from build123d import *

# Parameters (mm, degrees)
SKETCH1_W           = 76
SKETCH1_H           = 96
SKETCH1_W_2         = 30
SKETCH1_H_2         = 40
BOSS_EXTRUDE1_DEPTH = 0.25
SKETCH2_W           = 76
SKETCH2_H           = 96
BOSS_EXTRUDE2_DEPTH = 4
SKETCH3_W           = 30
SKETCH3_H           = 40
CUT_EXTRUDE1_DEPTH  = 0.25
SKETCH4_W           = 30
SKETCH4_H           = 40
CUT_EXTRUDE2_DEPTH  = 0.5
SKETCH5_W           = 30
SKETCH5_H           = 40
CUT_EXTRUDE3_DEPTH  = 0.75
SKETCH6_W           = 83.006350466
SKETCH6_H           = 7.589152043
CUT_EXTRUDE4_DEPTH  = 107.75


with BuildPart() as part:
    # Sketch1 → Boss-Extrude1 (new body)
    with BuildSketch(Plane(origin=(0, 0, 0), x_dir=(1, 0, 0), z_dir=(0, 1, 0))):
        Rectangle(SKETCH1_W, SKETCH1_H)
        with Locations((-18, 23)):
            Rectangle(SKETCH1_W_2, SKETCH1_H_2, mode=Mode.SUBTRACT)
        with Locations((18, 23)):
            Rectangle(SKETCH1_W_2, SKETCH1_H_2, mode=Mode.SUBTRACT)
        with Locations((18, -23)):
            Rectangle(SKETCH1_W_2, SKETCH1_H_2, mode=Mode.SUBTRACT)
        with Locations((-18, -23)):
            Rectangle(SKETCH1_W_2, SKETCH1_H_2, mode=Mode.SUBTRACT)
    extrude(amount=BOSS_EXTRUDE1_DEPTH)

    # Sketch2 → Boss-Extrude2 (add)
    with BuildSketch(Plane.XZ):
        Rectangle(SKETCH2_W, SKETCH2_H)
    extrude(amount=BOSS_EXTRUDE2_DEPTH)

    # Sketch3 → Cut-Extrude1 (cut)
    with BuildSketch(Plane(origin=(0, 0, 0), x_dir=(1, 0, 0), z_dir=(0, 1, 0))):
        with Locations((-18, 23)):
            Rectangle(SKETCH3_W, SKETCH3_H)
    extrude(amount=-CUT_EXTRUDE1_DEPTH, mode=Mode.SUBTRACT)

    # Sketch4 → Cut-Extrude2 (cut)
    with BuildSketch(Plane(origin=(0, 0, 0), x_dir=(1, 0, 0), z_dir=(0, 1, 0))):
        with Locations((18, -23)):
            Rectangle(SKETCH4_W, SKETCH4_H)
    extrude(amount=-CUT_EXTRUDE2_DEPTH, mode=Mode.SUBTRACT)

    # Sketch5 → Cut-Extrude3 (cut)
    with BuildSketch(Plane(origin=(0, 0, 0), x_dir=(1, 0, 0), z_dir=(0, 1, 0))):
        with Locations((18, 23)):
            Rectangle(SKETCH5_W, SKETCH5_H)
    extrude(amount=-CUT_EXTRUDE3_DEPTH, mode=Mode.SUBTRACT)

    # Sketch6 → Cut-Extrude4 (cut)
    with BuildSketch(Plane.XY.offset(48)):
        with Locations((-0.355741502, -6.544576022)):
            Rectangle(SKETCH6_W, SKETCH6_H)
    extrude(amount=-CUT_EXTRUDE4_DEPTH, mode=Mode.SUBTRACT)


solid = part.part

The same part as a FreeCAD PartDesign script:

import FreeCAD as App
import Part
import Sketcher
from FreeCAD import Vector
Q = App.Units.Quantity


def add_polygon(sketch, points):
    """Adds a closed chain of lines whose ends are joined by coincident constraints."""
    first, n = sketch.GeometryCount, len(points)
    for a, b in zip(points, points[1:] + points[:1]):
        sketch.addGeometry(Part.LineSegment(App.Vector(*a, 0), App.Vector(*b, 0)), False)
    for i in range(n):
        sketch.addConstraint(Sketcher.Constraint("Coincident", first + i, 2, first + (i + 1) % n, 1))

doc = App.newDocument("Part")
body = doc.addObject("PartDesign::Body", "Body")

# Sketch on XZ plane
sketch1 = body.newObject("Sketcher::SketchObject", "Sketch")
sketch1.AttachmentSupport = (doc.getObject("XZ_Plane"), [""])
sketch1.MapMode = "FlatFace"
add_polygon(sketch1, [(-38, -48), (-38, 48), (38, 48), (38, -48)])  # lines 0-3
add_polygon(sketch1, [(-3, 43), (-33, 43), (-33, 3), (-3, 3)])  # lines 4-7
add_polygon(sketch1, [(33, 43), (3, 43), (3, 3), (33, 3)])  # lines 8-11
add_polygon(sketch1, [(-3, -3), (-33, -3), (-33, -43), (-3, -43)])  # lines 12-15
add_polygon(sketch1, [(33, -3), (3, -3), (3, -43), (33, -43)])  # lines 16-19
sketch1.addConstraint([
    Sketcher.Constraint("Vertical", 0),
    Sketcher.Constraint("Horizontal", 1),
    Sketcher.Constraint("Vertical", 2),
    Sketcher.Constraint("Horizontal", 3),
    Sketcher.Constraint("Horizontal", 4),
    Sketcher.Constraint("Vertical", 5),
    Sketcher.Constraint("Horizontal", 6),
    Sketcher.Constraint("Vertical", 7),
    Sketcher.Constraint("Horizontal", 8),
    Sketcher.Constraint("Vertical", 9),
    Sketcher.Constraint("Horizontal", 10),
    Sketcher.Constraint("Vertical", 11),
    Sketcher.Constraint("Horizontal", 12),
    Sketcher.Constraint("Vertical", 13),
    Sketcher.Constraint("Horizontal", 14),
    Sketcher.Constraint("Vertical", 15),
    Sketcher.Constraint("Horizontal", 16),
    Sketcher.Constraint("Vertical", 17),
    Sketcher.Constraint("Horizontal", 18),
    Sketcher.Constraint("Vertical", 19),
    Sketcher.Constraint("Symmetric", 0, 2, 2, 2, -1, 1),
    Sketcher.Constraint("Symmetric", 10, 2, 12, 2, -1, 1),
    Sketcher.Constraint("Symmetric", 8, 2, 14, 2, -1, 1),
    Sketcher.Constraint("Symmetric", 6, 2, 16, 2, -1, 1),
    Sketcher.Constraint("Symmetric", 4, 2, 18, 2, -1, 1),
    Sketcher.Constraint("Symmetric", 7, 2, 8, 2, -2),
    Sketcher.Constraint("Symmetric", 5, 2, 10, 2, -2),
    Sketcher.Constraint("DistanceX", 1, 1, 1, 2, Q("76 mm")),
    Sketcher.Constraint("DistanceX", 4, 2, 4, 1, Q("30 mm")),
    Sketcher.Constraint("DistanceY", 0, 1, 0, 2, Q("96 mm")),
    Sketcher.Constraint("DistanceY", 5, 2, 5, 1, Q("40 mm")),
    Sketcher.Constraint("DistanceX", 4, 2, -1, 1, Q("33 mm")),
    Sketcher.Constraint("DistanceY", -1, 1, 4, 2, Q("43 mm")),
])
pad1 = body.newObject("PartDesign::Pad", "Pad")
pad1.Profile = sketch1
pad1.Length = 0.25
pad1.Reversed = True

# Sketch on XZ plane
sketch2 = body.newObject("Sketcher::SketchObject", "Sketch001")
sketch2.AttachmentSupport = (doc.getObject("XZ_Plane"), [""])
sketch2.MapMode = "FlatFace"
add_polygon(sketch2, [(-38, 48), (-38, -48), (38, -48), (38, 48)])  # lines 0-3
sketch2.addConstraint([
    Sketcher.Constraint("Vertical", 0),
    Sketcher.Constraint("Horizontal", 1),
    Sketcher.Constraint("Vertical", 2),
    Sketcher.Constraint("Horizontal", 3),
    Sketcher.Constraint("Symmetric", 0, 2, 2, 2, -1, 1),
    Sketcher.Constraint("DistanceX", 1, 1, 1, 2, Q("76 mm")),
    Sketcher.Constraint("DistanceY", 0, 2, 0, 1, Q("96 mm")),
])
pad2 = body.newObject("PartDesign::Pad", "Pad001")
pad2.Profile = sketch2
pad2.Length = 4

# Sketch on XZ plane
sketch3 = body.newObject("Sketcher::SketchObject", "Sketch002")
sketch3.AttachmentSupport = (doc.getObject("XZ_Plane"), [""])
sketch3.MapMode = "FlatFace"
add_polygon(sketch3, [(-33, -43), (-33, -3), (-3, -3), (-3, -43)])  # lines 0-3
sketch3.addConstraint([
    Sketcher.Constraint("Vertical", 0),
    Sketcher.Constraint("Horizontal", 1),
    Sketcher.Constraint("Vertical", 2),
    Sketcher.Constraint("Horizontal", 3),
    Sketcher.Constraint("DistanceX", 1, 1, 1, 2, Q("30 mm")),
    Sketcher.Constraint("DistanceY", 0, 1, 0, 2, Q("40 mm")),
    Sketcher.Constraint("DistanceX", 0, 2, -1, 1, Q("33 mm")),
    Sketcher.Constraint("DistanceY", 0, 2, -1, 1, Q("3 mm")),
])
pocket1 = body.newObject("PartDesign::Pocket", "Pocket")
pocket1.Profile = sketch3
pocket1.Length = 0.25
pocket1.Reversed = True

# Sketch on XZ plane
sketch4 = body.newObject("Sketcher::SketchObject", "Sketch003")
sketch4.AttachmentSupport = (doc.getObject("XZ_Plane"), [""])
sketch4.MapMode = "FlatFace"
add_polygon(sketch4, [(3, 3), (3, 43), (33, 43), (33, 3)])  # lines 0-3
sketch4.addConstraint([
    Sketcher.Constraint("Vertical", 0),
    Sketcher.Constraint("Horizontal", 1),
    Sketcher.Constraint("Vertical", 2),
    Sketcher.Constraint("Horizontal", 3),
    Sketcher.Constraint("DistanceX", 1, 1, 1, 2, Q("30 mm")),
    Sketcher.Constraint("DistanceY", 0, 1, 0, 2, Q("40 mm")),
    Sketcher.Constraint("DistanceX", -1, 1, 0, 2, Q("3 mm")),
    Sketcher.Constraint("DistanceY", -1, 1, 0, 2, Q("43 mm")),
])
pocket2 = body.newObject("PartDesign::Pocket", "Pocket001")
pocket2.Profile = sketch4
pocket2.Length = 0.5
pocket2.Reversed = True

# Sketch on XZ plane
sketch5 = body.newObject("Sketcher::SketchObject", "Sketch004")
sketch5.AttachmentSupport = (doc.getObject("XZ_Plane"), [""])
sketch5.MapMode = "FlatFace"
add_polygon(sketch5, [(3, -43), (3, -3), (33, -3), (33, -43)])  # lines 0-3
sketch5.addConstraint([
    Sketcher.Constraint("Vertical", 0),
    Sketcher.Constraint("Horizontal", 1),
    Sketcher.Constraint("Vertical", 2),
    Sketcher.Constraint("Horizontal", 3),
    Sketcher.Constraint("DistanceX", 1, 1, 1, 2, Q("30 mm")),
    Sketcher.Constraint("DistanceY", 0, 1, 0, 2, Q("40 mm")),
    Sketcher.Constraint("DistanceX", -1, 1, 0, 2, Q("3 mm")),
    Sketcher.Constraint("DistanceY", 0, 2, -1, 1, Q("3 mm")),
])
pocket3 = body.newObject("PartDesign::Pocket", "Pocket002")
pocket3.Profile = sketch5
pocket3.Length = 0.75
pocket3.Reversed = True

# Sketch on XY plane
sketch6 = body.newObject("Sketcher::SketchObject", "Sketch005")
sketch6.AttachmentSupport = (doc.getObject("XY_Plane"), [""])
sketch6.MapMode = "FlatFace"
sketch6.AttachmentOffset = App.Placement(Vector(0, 0, 48), App.Rotation())
add_polygon(sketch6, [(-42, -3), (-42, -10), (41, -10), (41, -3)])  # lines 0-3
sketch6.addConstraint([
    Sketcher.Constraint("Vertical", 0),
    Sketcher.Constraint("Horizontal", 1),
    Sketcher.Constraint("Vertical", 2),
    Sketcher.Constraint("Horizontal", 3),
    Sketcher.Constraint("DistanceY", 2, 2, -1, 1, Q("2.75 mm")),
    Sketcher.Constraint("DistanceX", 1, 1, 1, 2, Q("83.00635 mm")),
    Sketcher.Constraint("DistanceY", 0, 2, 0, 1, Q("7.589152 mm")),
    Sketcher.Constraint("DistanceX", 0, 2, -1, 1, Q("41.858917 mm")),
])
pocket4 = body.newObject("PartDesign::Pocket", "Pocket003")
pocket4.Profile = sketch6
pocket4.Length = 107.75

doc.recompute()
